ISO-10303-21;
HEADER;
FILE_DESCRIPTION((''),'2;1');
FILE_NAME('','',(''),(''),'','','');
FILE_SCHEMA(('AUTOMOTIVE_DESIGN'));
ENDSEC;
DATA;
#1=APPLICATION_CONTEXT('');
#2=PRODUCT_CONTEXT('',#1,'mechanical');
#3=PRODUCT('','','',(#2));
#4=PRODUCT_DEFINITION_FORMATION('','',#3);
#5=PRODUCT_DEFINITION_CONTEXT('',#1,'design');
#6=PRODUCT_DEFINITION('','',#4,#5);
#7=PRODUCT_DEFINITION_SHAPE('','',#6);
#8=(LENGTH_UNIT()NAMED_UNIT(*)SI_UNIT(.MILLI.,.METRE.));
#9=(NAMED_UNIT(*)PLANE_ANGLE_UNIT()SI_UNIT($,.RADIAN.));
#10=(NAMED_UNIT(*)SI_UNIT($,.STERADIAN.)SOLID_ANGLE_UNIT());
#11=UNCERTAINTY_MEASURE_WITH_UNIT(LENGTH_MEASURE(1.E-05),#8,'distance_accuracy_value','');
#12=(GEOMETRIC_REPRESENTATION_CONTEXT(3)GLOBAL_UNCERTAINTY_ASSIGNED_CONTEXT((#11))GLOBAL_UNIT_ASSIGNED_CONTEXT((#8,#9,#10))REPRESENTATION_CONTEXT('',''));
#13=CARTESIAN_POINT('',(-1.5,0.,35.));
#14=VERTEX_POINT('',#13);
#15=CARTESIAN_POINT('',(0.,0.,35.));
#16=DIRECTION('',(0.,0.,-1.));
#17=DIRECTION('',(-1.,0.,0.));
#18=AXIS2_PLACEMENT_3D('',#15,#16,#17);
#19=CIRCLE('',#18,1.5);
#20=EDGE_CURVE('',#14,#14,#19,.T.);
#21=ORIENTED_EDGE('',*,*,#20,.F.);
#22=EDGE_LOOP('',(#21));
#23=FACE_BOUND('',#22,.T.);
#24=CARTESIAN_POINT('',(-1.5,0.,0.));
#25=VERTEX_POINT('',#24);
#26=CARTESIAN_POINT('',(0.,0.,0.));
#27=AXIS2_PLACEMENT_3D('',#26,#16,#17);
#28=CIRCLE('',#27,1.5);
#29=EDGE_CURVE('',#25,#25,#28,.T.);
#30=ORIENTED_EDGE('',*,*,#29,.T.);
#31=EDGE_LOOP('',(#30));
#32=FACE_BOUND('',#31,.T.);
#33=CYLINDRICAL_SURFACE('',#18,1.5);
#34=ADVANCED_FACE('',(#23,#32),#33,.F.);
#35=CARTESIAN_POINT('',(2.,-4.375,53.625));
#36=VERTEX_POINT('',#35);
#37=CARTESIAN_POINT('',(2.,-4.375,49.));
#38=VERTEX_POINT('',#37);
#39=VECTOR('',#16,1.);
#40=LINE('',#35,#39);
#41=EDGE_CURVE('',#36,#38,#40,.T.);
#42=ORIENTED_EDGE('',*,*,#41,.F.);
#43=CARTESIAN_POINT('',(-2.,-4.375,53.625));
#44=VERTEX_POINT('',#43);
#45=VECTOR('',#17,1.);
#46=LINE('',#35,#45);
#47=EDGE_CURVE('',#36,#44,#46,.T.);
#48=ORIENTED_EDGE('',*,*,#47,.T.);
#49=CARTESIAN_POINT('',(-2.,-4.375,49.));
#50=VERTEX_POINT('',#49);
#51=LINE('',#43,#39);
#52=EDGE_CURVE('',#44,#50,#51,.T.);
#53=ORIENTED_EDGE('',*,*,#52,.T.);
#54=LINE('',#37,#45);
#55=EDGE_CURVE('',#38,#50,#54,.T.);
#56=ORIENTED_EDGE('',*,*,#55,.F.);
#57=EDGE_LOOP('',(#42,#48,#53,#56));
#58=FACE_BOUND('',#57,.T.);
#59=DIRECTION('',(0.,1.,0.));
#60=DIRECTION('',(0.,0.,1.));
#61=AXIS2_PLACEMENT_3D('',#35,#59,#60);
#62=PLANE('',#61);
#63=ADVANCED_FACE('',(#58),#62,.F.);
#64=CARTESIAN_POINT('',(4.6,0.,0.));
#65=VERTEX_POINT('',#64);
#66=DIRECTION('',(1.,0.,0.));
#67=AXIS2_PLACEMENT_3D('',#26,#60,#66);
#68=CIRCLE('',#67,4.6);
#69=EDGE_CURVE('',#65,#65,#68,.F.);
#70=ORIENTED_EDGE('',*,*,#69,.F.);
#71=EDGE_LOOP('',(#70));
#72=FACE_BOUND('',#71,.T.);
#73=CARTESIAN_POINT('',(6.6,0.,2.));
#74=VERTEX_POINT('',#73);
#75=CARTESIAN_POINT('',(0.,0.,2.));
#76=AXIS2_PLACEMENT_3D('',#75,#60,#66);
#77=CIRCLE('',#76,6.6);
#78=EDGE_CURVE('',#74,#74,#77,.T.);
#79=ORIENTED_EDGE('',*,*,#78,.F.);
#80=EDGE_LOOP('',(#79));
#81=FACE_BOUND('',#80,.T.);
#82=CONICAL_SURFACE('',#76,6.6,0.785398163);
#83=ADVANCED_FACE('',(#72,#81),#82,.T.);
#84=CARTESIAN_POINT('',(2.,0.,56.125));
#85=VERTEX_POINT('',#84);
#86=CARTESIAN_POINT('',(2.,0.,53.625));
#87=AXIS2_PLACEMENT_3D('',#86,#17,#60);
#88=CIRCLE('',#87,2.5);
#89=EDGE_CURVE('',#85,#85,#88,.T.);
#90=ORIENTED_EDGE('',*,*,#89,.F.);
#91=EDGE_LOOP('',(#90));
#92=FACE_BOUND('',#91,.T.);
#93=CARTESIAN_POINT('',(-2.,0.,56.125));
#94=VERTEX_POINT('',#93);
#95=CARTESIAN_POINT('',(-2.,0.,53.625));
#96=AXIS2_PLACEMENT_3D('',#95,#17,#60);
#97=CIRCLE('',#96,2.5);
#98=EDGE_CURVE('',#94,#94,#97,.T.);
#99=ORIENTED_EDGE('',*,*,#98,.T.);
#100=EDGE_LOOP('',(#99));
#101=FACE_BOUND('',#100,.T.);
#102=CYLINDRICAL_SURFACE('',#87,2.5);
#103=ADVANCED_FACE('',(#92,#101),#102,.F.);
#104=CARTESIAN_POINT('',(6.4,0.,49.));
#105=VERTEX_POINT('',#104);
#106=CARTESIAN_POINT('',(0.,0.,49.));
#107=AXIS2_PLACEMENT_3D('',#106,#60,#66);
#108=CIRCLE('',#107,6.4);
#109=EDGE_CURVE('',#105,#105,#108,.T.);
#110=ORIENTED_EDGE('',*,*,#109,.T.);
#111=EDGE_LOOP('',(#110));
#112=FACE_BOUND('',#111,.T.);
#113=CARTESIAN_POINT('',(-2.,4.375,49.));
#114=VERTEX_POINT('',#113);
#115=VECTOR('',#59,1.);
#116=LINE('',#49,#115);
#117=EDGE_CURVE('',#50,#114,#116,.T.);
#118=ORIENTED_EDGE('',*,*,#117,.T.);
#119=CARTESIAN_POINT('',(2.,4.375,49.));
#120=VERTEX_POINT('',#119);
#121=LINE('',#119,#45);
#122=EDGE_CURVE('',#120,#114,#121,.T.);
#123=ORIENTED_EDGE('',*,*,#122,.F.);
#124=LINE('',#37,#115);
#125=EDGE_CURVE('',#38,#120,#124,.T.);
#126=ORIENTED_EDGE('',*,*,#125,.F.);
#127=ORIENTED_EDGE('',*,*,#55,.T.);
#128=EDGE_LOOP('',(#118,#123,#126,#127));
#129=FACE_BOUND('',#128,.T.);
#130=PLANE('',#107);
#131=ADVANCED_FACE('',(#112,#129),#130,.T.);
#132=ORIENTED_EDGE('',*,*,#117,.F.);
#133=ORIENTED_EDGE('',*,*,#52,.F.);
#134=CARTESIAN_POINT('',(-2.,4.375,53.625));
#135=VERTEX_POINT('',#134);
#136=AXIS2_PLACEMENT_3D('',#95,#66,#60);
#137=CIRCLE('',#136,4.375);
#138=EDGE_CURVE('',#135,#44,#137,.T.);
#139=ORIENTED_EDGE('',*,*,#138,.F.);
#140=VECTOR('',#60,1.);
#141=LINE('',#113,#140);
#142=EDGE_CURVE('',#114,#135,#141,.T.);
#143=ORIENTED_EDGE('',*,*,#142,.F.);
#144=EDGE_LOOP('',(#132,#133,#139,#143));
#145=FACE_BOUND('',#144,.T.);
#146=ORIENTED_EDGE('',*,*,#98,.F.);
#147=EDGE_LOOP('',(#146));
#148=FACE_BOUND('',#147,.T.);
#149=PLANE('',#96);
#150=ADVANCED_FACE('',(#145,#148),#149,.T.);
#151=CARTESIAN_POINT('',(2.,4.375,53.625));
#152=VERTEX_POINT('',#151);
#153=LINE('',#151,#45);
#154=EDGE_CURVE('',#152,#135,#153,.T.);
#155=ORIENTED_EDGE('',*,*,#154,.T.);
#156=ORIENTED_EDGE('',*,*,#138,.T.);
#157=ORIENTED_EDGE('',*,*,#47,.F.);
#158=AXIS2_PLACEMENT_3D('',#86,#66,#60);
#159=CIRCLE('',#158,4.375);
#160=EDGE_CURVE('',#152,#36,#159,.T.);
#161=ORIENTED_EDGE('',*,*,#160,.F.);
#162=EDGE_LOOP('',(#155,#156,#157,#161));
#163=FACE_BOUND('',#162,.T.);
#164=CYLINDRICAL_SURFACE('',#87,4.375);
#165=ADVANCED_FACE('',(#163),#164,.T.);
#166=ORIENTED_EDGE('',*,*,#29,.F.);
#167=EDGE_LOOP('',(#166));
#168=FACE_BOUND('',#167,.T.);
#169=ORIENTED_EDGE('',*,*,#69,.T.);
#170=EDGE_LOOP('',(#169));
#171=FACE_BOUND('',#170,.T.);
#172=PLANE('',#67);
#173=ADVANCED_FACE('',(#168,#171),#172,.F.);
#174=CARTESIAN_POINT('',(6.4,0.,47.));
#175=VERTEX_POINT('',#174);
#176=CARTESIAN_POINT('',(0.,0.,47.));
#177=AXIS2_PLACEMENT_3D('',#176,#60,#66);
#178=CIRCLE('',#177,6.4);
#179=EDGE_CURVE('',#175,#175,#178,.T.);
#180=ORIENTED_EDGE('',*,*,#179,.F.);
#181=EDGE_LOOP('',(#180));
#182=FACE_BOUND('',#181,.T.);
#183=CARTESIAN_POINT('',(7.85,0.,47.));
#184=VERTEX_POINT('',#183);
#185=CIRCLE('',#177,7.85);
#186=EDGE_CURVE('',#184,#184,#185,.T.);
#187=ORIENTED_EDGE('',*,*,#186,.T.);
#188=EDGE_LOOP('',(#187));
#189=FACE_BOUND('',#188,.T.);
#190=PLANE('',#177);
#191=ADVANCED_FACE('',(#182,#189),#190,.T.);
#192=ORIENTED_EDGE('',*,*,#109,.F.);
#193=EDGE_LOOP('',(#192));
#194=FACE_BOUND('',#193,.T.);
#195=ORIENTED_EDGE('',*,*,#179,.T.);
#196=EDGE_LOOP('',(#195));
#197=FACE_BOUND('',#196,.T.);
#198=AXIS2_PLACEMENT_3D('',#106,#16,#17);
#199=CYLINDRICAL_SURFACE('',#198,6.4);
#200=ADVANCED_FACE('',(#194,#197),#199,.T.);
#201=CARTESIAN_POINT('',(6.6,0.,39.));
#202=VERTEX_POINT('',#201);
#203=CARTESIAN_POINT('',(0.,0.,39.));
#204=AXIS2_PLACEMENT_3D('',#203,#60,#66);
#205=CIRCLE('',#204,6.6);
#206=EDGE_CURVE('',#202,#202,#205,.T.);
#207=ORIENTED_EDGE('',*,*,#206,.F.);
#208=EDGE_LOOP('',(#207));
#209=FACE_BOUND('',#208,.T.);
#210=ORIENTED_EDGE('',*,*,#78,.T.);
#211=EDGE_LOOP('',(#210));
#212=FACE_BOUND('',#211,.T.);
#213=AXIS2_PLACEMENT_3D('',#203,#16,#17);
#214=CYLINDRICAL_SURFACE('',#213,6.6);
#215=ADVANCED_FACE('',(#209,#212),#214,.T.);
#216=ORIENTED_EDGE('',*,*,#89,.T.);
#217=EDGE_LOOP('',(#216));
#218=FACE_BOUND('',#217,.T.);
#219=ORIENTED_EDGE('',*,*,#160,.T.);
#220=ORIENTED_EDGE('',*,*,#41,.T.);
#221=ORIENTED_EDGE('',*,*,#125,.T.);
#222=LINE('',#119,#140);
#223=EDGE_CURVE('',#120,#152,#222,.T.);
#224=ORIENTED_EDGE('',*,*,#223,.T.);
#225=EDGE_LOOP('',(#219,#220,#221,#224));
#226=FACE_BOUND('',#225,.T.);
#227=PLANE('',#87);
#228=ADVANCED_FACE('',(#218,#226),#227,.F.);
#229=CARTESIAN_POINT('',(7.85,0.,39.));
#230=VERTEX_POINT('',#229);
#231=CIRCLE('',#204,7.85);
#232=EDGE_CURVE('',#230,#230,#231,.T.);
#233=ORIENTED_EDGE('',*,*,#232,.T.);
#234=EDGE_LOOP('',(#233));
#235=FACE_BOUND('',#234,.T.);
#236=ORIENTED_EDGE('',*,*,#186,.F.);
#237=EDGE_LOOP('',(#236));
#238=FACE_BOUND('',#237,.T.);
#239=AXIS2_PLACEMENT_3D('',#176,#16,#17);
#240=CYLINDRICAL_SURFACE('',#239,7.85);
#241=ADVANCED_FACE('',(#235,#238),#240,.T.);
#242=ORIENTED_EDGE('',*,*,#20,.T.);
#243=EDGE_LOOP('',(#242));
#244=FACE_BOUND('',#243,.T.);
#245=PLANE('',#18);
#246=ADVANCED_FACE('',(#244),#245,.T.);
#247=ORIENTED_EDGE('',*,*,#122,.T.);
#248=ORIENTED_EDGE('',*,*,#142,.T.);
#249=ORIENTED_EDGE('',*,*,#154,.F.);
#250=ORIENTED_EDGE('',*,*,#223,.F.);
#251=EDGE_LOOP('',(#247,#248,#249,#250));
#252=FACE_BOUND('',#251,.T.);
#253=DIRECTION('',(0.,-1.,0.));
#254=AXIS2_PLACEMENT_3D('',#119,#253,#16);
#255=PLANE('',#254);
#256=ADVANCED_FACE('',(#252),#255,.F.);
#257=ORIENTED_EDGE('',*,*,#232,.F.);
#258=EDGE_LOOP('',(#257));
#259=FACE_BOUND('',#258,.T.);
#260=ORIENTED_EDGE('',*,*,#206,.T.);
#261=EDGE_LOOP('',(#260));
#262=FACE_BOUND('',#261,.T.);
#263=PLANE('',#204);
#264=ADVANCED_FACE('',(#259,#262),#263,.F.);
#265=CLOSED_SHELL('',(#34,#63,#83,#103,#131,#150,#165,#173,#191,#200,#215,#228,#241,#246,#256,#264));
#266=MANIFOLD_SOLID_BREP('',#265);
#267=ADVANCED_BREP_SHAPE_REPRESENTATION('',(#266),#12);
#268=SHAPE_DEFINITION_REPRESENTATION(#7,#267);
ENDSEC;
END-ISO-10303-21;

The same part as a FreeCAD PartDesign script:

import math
import FreeCAD as App
import Part
import Sketcher


def edges_at(feature, points):
    """Names of the edges that pass closest to the given points."""
    edges = feature.Shape.Edges
    near = lambda p: min(range(len(edges)), key=lambda i: edges[i].distToShape(Part.Vertex(*p))[0])
    return sorted({f"Edge{near(p) + 1}" for p in points})

doc = App.newDocument("Part")
body = doc.addObject("PartDesign::Body", "Body")

# Sketch on XY plane
sketch1 = body.newObject("Sketcher::SketchObject", "Sketch")
sketch1.AttachmentSupport = (doc.getObject("XY_Plane"), [""])
sketch1.MapMode = "FlatFace"
sketch1.addGeometry(Part.Circle(App.Vector(0, 0, 0), App.Vector(0, 0, 1), 7), False)
sketch1.addConstraint([
    Sketcher.Constraint("Coincident", 0, 3, -1, 1),
    Sketcher.Constraint("Diameter", 0, 13.2),
])
pad1 = body.newObject("PartDesign::Pad", "Pad")
pad1.Profile = sketch1
pad1.Length = 39
doc.recompute()

chamfer = body.newObject("PartDesign::Chamfer", "Chamfer")
chamfer.Base = (pad1, edges_at(pad1, [(-6.6, 0, 0)]))
chamfer.Size = 2

# Sketch on XY plane
sketch2 = body.newObject("Sketcher::SketchObject", "Sketch001")
sketch2.AttachmentSupport = (doc.getObject("XY_Plane"), [""])
sketch2.MapMode = "FlatFace"
sketch2.AttachmentOffset = App.Placement(App.Vector(0, 0, 39), App.Rotation())
sketch2.addGeometry(Part.Circle(App.Vector(0, 0, 0), App.Vector(0, 0, 1), 8), False)
sketch2.addConstraint([
    Sketcher.Constraint("Coincident", 0, 3, -1, 1),
    Sketcher.Constraint("Diameter", 0, 15.7),
])
pad2 = body.newObject("PartDesign::Pad", "Pad001")
pad2.Profile = sketch2
pad2.Length = 8

# Sketch on XY plane
sketch3 = body.newObject("Sketcher::SketchObject", "Sketch002")
sketch3.AttachmentSupport = (doc.getObject("XY_Plane"), [""])
sketch3.MapMode = "FlatFace"
sketch3.AttachmentOffset = App.Placement(App.Vector(0, 0, 47), App.Rotation())
sketch3.addGeometry(Part.Circle(App.Vector(0, 0, 0), App.Vector(0, 0, 1), 6), False)
sketch3.addConstraint([
    Sketcher.Constraint("Coincident", 0, 3, -1, 1),
    Sketcher.Constraint("Diameter", 0, 12.8),
])
pad3 = body.newObject("PartDesign::Pad", "Pad002")
pad3.Profile = sketch3
pad3.Length = 2

# Sketch on YZ plane
sketch4 = body.newObject("Sketcher::SketchObject", "Sketch003")
sketch4.AttachmentSupport = (doc.getObject("YZ_Plane"), [""])
sketch4.MapMode = "FlatFace"
sketch4.addGeometry([
    Part.LineSegment(App.Vector(-4.4, 53.6, 0), App.Vector(-4.4, 49, 0)),
    Part.LineSegment(App.Vector(-4.4, 49, 0), App.Vector(4.4, 49, 0)),
    Part.LineSegment(App.Vector(4.4, 49, 0), App.Vector(4.4, 53.6, 0)),
    Part.ArcOfCircle(Part.Circle(App.Vector(0, 53.6, 0), App.Vector(0, 0, 1), 4.4), math.radians(0), math.radians(180)),
], False)
sketch4.addConstraint([
    Sketcher.Constraint("Coincident", 0, 2, 1, 1),
    Sketcher.Constraint("Coincident", 1, 2, 2, 1),
    Sketcher.Constraint("Tangent", 2, 2, 3, 1),
    Sketcher.Constraint("Tangent", 3, 2, 0, 1),
    Sketcher.Constraint("Vertical", 0),
    Sketcher.Constraint("Horizontal", 1),
    Sketcher.Constraint("Vertical", 2),
    Sketcher.Constraint("PointOnObject", 3, 3, -2),
    Sketcher.Constraint("DistanceY", -1, 1, 0, 2, 49.0),
    Sketcher.Constraint("Radius", 3, 4.375),
    Sketcher.Constraint("DistanceY", 0, 2, 0, 1, 4.625),
])
pad4 = body.newObject("PartDesign::Pad", "Pad003")
pad4.Profile = sketch4
pad4.Length = 4
pad4.Midplane = True

# Sketch on YZ plane
sketch5 = body.newObject("Sketcher::SketchObject", "Sketch004")
sketch5.AttachmentSupport = (doc.getObject("YZ_Plane"), [""])
sketch5.MapMode = "FlatFace"
sketch5.AttachmentOffset = App.Placement(App.Vector(0, 0, -2), App.Rotation())
sketch5.addGeometry(Part.Circle(App.Vector(0, 53.6, 0), App.Vector(0, 0, 1), 2.5), False)
sketch5.addConstraint([
    Sketcher.Constraint("PointOnObject", 0, 3, -2),
    Sketcher.Constraint("Diameter", 0, 5.0),
    Sketcher.Constraint("DistanceY", -1, 1, 0, 3, 53.625),
])
pocket1 = body.newObject("PartDesign::Pocket", "Pocket")
pocket1.Profile = sketch5
pocket1.Length = 4
pocket1.Reversed = True

# Sketch on XY plane
sketch6 = body.newObject("Sketcher::SketchObject", "Sketch005")
sketch6.AttachmentSupport = (doc.getObject("XY_Plane"), [""])
sketch6.MapMode = "FlatFace"
sketch6.addGeometry(Part.Circle(App.Vector(0, 0, 0), App.Vector(0, 0, 1), 1.5), False)
sketch6.addConstraint([
    Sketcher.Constraint("Coincident", 0, 3, -1, 1),
    Sketcher.Constraint("Diameter", 0, 3.0),
])
pocket2 = body.newObject("PartDesign::Pocket", "Pocket001")
pocket2.Profile = sketch6
pocket2.Length = 35
pocket2.Reversed = True

doc.recompute()
